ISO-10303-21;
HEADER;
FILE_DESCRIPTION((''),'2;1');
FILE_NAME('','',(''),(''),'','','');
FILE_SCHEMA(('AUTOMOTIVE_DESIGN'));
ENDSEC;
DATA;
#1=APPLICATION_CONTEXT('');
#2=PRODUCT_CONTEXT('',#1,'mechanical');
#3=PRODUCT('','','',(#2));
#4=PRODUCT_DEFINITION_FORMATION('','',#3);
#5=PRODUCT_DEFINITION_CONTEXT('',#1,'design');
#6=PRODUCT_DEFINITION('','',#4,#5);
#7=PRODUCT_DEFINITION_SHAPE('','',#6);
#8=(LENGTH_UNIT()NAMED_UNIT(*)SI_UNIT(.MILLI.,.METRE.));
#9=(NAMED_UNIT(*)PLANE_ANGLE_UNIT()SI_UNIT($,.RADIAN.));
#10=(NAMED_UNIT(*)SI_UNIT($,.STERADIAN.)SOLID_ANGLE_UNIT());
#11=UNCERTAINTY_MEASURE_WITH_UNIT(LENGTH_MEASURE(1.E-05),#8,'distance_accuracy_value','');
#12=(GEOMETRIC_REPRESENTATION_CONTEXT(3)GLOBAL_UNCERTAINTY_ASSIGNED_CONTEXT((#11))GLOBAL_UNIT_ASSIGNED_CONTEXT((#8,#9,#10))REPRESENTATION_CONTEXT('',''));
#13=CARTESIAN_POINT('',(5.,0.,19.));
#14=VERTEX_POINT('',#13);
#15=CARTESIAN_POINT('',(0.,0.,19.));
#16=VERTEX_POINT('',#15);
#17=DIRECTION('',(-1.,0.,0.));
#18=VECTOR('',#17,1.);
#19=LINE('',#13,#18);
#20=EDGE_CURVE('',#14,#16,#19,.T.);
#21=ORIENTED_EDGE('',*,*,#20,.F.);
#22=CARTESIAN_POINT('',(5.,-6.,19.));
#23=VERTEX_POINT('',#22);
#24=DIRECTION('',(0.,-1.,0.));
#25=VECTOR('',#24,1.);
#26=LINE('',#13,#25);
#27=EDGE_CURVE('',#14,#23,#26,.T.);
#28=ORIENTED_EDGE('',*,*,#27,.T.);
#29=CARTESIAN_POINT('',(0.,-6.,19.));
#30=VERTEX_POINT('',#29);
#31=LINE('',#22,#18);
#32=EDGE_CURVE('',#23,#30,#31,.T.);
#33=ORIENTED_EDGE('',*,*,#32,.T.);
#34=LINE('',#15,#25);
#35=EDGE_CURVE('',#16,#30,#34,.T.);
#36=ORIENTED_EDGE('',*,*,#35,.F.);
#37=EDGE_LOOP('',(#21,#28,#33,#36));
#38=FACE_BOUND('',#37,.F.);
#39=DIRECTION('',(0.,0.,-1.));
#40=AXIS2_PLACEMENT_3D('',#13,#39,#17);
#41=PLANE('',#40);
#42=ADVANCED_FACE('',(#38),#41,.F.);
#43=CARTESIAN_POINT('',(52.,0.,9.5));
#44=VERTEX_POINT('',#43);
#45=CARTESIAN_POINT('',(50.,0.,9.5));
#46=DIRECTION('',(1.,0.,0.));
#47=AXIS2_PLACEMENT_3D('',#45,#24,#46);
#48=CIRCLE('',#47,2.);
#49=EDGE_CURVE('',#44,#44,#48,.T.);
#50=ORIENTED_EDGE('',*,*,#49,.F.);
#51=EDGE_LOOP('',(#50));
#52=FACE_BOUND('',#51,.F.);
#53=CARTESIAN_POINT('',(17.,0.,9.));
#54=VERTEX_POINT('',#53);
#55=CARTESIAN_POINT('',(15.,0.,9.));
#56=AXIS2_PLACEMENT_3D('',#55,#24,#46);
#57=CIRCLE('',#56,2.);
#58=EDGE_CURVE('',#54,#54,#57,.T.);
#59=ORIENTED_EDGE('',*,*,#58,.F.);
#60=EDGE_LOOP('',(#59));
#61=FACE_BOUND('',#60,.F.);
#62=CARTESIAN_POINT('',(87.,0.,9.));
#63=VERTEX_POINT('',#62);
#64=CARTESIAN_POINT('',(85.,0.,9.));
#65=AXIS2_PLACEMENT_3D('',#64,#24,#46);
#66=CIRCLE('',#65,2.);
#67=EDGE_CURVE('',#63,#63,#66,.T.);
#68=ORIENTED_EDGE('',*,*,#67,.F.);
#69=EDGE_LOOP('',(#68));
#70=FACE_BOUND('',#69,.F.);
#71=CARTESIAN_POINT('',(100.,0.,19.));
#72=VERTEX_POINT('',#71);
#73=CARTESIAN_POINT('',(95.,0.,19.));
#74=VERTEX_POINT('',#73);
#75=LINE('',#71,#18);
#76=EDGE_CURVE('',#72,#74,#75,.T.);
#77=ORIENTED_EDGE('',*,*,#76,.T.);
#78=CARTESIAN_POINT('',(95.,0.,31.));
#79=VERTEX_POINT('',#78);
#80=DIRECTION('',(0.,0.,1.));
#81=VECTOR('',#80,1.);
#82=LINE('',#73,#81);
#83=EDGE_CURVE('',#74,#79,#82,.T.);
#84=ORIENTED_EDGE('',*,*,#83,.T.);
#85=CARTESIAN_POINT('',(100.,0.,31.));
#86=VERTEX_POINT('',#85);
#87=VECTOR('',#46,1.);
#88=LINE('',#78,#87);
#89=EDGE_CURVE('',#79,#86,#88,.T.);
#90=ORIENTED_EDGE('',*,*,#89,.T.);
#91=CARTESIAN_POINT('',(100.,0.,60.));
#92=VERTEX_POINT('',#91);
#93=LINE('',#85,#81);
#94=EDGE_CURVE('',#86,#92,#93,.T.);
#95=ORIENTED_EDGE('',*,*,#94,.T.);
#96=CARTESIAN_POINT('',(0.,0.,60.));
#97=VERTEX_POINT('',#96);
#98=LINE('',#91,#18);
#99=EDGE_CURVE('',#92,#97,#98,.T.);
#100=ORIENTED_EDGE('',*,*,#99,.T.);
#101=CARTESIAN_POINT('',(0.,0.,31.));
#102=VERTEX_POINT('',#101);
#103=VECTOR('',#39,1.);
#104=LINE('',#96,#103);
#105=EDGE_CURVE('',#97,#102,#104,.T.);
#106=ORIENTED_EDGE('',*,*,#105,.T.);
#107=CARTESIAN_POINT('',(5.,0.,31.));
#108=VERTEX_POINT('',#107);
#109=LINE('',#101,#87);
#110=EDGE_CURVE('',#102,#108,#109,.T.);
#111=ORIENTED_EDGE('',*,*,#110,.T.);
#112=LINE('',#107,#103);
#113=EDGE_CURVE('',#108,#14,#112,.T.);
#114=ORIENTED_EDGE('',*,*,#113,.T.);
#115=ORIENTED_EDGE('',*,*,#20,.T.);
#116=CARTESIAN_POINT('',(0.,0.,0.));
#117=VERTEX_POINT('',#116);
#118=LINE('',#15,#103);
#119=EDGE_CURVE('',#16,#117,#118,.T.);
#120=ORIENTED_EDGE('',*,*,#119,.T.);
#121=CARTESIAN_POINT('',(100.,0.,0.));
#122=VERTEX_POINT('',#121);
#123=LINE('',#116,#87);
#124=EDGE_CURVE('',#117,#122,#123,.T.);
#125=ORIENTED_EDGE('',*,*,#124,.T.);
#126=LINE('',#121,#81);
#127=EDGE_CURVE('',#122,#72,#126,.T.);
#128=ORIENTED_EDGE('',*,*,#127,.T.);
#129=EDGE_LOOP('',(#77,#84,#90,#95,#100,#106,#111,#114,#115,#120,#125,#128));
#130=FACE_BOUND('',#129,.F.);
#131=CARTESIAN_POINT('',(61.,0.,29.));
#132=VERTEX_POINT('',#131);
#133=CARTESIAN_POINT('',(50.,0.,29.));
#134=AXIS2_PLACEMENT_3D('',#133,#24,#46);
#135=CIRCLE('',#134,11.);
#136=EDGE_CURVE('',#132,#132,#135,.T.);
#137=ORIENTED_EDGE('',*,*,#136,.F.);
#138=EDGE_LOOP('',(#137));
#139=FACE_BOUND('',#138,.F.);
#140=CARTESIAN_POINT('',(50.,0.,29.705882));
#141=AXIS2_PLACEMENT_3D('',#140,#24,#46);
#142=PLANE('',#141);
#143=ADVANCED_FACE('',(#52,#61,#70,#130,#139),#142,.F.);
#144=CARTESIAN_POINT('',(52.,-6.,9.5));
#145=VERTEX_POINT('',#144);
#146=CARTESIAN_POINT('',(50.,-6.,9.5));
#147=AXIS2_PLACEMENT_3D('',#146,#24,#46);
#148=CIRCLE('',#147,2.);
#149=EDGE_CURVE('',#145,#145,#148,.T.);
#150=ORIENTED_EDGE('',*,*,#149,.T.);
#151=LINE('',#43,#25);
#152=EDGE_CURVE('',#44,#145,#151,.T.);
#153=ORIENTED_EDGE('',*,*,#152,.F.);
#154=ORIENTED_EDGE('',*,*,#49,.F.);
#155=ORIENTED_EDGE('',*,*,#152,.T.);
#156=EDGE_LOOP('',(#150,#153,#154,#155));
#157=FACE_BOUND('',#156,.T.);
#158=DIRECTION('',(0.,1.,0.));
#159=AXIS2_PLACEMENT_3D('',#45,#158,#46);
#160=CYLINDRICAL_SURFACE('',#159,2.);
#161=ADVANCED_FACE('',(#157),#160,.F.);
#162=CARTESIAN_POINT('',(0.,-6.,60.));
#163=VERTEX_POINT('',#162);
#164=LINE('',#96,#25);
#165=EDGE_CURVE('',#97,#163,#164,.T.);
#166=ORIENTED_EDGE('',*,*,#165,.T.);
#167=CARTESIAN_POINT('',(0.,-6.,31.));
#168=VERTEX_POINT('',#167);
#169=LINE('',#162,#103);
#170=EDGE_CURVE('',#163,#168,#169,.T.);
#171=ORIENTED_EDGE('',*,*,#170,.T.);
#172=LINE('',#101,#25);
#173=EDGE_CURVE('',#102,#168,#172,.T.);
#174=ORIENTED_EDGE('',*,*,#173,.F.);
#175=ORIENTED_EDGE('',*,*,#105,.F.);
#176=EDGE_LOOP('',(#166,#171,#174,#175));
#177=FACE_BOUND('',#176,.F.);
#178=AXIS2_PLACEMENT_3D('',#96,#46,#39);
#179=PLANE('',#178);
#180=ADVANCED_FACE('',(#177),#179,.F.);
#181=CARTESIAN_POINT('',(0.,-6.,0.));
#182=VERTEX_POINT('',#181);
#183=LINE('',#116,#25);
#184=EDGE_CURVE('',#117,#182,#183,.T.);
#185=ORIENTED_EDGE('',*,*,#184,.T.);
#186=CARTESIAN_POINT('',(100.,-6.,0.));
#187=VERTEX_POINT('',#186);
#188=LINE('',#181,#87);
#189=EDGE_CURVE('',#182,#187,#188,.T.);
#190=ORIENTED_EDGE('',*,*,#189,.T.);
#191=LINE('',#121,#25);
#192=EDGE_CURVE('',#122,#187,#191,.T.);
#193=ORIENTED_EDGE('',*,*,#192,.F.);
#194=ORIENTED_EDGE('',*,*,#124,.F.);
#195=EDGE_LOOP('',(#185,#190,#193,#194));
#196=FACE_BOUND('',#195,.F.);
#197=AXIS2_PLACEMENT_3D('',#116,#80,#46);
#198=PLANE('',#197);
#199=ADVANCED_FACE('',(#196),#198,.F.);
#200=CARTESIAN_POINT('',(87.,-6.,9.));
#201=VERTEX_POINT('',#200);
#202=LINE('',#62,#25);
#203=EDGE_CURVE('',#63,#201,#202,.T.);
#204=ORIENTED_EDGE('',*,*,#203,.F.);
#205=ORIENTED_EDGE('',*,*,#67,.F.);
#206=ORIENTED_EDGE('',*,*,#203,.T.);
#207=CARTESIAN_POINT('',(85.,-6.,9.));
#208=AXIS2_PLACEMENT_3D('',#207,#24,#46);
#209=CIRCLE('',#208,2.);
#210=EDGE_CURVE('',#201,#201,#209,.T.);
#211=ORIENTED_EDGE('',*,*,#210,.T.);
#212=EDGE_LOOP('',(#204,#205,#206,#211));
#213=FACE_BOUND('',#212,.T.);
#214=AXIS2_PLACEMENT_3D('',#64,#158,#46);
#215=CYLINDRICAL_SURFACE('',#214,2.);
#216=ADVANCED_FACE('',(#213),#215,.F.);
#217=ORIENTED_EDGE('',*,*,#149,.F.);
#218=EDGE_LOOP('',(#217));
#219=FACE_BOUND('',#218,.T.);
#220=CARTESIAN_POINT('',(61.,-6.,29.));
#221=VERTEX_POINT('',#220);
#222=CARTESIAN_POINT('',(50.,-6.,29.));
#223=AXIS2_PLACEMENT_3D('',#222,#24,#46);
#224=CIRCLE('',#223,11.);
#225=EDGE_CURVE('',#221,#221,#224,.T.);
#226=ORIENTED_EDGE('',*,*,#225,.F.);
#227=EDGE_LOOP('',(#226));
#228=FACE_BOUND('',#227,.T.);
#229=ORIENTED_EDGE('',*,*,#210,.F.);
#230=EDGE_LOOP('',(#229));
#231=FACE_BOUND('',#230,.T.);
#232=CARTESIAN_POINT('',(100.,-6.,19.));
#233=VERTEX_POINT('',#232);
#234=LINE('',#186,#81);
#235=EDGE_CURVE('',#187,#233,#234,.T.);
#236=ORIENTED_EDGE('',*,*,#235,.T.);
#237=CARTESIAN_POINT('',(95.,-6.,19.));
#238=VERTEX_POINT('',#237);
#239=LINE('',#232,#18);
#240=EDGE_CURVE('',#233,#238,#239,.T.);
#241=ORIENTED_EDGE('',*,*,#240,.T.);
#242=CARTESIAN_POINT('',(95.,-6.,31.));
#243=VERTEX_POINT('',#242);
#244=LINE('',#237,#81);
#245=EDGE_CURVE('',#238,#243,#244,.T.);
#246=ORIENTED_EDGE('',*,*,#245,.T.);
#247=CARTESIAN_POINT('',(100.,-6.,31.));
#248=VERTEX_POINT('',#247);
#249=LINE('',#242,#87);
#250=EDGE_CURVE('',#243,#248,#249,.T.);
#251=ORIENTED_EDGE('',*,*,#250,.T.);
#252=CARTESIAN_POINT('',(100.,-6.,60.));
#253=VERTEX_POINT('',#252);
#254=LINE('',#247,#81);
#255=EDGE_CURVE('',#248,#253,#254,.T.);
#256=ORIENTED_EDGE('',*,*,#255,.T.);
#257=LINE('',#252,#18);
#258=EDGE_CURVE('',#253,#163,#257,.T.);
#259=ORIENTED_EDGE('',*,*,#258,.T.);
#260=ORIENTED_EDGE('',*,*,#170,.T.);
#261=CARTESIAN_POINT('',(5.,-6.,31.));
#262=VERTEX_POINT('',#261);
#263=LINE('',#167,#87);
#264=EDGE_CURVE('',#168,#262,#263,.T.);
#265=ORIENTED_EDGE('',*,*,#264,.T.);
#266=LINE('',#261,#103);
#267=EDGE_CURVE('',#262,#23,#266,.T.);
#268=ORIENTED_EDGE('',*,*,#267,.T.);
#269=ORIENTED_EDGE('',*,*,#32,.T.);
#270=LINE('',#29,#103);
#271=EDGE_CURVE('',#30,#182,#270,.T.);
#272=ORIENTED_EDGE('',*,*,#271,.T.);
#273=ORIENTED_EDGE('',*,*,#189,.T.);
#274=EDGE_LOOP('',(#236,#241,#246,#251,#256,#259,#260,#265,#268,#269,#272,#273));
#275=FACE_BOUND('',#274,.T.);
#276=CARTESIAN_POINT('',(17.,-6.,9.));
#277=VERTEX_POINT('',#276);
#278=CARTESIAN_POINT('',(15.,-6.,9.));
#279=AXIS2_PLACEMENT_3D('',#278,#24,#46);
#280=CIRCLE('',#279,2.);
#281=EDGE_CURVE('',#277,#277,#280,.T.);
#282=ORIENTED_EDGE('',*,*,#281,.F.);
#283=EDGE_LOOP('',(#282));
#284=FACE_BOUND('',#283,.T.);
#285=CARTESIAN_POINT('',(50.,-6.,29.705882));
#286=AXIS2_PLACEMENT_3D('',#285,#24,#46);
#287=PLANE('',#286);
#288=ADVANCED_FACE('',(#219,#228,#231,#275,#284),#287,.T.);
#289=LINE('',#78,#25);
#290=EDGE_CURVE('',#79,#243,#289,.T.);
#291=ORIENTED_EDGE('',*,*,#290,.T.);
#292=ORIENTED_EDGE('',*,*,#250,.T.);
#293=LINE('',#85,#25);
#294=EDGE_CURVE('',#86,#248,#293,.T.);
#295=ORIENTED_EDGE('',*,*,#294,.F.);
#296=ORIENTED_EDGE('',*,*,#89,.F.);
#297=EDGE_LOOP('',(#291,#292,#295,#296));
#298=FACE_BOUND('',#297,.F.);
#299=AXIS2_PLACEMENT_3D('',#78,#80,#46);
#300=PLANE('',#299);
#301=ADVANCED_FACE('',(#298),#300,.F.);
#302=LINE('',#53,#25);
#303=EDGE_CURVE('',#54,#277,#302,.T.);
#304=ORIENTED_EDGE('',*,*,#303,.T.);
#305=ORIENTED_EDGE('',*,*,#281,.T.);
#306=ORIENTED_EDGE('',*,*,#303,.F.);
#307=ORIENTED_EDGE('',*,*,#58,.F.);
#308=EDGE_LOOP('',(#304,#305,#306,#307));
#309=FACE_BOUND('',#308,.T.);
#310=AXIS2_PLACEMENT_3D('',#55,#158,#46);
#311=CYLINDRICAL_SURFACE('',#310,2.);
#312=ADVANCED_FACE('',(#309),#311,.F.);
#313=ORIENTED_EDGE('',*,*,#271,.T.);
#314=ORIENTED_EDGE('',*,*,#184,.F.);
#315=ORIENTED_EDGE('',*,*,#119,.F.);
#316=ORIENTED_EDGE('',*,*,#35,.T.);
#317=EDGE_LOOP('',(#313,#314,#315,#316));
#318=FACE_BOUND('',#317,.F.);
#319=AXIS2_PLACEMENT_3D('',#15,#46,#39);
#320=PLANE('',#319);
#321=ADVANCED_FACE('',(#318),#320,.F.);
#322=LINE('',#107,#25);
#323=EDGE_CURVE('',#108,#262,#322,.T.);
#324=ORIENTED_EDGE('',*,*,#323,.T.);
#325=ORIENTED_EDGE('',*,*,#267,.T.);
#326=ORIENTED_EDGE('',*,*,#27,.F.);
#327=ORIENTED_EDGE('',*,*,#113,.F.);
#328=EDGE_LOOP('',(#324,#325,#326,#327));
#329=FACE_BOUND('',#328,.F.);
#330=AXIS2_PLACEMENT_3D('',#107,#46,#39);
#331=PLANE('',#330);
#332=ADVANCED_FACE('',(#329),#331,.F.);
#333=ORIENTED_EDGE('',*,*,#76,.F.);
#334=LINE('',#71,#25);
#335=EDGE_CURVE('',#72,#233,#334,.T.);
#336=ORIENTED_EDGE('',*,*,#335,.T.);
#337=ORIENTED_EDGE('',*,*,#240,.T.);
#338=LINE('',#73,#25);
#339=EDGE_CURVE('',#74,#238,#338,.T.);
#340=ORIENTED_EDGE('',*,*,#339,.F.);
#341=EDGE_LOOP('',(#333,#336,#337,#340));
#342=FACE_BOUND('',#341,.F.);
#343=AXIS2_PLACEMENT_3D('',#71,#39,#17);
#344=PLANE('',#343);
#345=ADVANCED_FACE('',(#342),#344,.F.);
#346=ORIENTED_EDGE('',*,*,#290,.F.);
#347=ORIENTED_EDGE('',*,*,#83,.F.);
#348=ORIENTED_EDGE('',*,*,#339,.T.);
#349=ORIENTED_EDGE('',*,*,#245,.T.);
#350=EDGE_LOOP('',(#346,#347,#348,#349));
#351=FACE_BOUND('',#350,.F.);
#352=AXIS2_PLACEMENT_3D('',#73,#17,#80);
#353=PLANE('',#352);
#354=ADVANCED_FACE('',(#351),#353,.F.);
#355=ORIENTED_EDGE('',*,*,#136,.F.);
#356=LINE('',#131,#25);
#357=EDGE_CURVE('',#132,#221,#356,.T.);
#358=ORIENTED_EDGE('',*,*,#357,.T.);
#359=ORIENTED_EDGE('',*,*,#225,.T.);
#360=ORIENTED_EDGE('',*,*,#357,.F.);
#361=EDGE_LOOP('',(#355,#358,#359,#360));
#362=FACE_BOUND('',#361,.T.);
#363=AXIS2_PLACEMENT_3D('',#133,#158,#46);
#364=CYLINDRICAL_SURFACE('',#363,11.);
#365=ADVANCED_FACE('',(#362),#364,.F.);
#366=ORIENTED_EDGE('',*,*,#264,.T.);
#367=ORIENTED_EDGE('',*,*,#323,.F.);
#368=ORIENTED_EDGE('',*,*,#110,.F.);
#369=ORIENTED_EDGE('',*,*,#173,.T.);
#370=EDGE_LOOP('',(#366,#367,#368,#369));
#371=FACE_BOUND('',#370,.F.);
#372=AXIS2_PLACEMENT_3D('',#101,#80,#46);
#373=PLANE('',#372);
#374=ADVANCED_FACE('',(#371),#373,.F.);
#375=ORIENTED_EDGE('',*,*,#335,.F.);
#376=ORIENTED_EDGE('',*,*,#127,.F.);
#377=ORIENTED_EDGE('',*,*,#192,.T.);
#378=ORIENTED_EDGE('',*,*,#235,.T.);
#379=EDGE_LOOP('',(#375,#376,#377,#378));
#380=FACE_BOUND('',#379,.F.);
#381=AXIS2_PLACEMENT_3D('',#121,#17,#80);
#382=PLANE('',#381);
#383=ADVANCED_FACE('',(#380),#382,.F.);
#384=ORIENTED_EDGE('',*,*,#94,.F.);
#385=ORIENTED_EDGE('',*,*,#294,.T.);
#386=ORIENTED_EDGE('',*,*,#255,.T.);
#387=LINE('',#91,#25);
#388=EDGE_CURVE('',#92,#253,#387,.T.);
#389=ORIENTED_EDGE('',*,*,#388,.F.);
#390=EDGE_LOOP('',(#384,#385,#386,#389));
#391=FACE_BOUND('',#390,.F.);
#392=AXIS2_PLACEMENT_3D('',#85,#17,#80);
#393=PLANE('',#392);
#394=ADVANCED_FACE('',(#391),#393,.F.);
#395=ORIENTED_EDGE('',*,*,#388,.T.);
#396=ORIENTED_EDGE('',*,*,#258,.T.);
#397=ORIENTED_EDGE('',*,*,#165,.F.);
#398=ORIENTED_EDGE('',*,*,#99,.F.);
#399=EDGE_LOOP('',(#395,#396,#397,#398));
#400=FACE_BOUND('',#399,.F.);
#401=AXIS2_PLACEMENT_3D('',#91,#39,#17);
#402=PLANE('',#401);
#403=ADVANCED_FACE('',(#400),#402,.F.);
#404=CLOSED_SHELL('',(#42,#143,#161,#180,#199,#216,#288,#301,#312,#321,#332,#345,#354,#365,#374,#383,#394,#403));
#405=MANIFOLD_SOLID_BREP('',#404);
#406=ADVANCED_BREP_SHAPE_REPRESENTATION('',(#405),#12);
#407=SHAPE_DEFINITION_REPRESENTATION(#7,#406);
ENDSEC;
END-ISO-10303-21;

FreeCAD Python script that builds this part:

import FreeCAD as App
import Part
import Sketcher
Q = App.Units.Quantity

doc = App.newDocument("Part")
body = doc.addObject("PartDesign::Body", "Body")

# Sketch on XZ plane
sketch1 = body.newObject("Sketcher::SketchObject", "Sketch")
sketch1.AttachmentSupport = (doc.getObject("XZ_Plane"), [""])
sketch1.MapMode = "FlatFace"
sketch1.addGeometry([
    Part.LineSegment(App.Vector(100, 60, 0), App.Vector(0, 60, 0)),  # 0
    Part.LineSegment(App.Vector(0, 60, 0), App.Vector(0, 31, 0)),  # 1
    Part.LineSegment(App.Vector(0, 31, 0), App.Vector(5, 31, 0)),  # 2
    Part.LineSegment(App.Vector(5, 31, 0), App.Vector(5, 19, 0)),  # 3
    Part.LineSegment(App.Vector(5, 19, 0), App.Vector(0, 19, 0)),  # 4
    Part.LineSegment(App.Vector(0, 19, 0), App.Vector(0, 0, 0)),  # 5
    Part.LineSegment(App.Vector(0, 0, 0), App.Vector(100, 0, 0)),  # 6
    Part.LineSegment(App.Vector(100, 0, 0), App.Vector(100, 19, 0)),  # 7
    Part.LineSegment(App.Vector(100, 19, 0), App.Vector(95, 19, 0)),  # 8
    Part.LineSegment(App.Vector(95, 19, 0), App.Vector(95, 31, 0)),  # 9
    Part.LineSegment(App.Vector(95, 31, 0), App.Vector(100, 31, 0)),  # 10
    Part.LineSegment(App.Vector(100, 31, 0), App.Vector(100, 60, 0)),  # 11
    Part.Circle(App.Vector(15, 9, 0), App.Vector(0, 0, 1), 2),  # 12
    Part.Circle(App.Vector(50, 9.5, 0), App.Vector(0, 0, 1), 2),  # 13
    Part.Circle(App.Vector(85, 9, 0), App.Vector(0, 0, 1), 2),  # 14
    Part.Circle(App.Vector(50, 29, 0), App.Vector(0, 0, 1), 11),  # 15
], False)
sketch1.addConstraint([
    Sketcher.Constraint("Coincident", 0, 2, 1, 1),
    Sketcher.Constraint("Coincident", 1, 2, 2, 1),
    Sketcher.Constraint("Coincident", 2, 2, 3, 1),
    Sketcher.Constraint("Coincident", 3, 2, 4, 1),
    Sketcher.Constraint("Coincident", 4, 2, 5, 1),
    Sketcher.Constraint("Coincident", 5, 2, 6, 1),
    Sketcher.Constraint("Coincident", 6, 2, 7, 1),
    Sketcher.Constraint("Coincident", 7, 2, 8, 1),
    Sketcher.Constraint("Coincident", 8, 2, 9, 1),
    Sketcher.Constraint("Coincident", 9, 2, 10, 1),
    Sketcher.Constraint("Coincident", 10, 2, 11, 1),
    Sketcher.Constraint("Coincident", 11, 2, 0, 1),
    Sketcher.Constraint("Horizontal", 0),
    Sketcher.Constraint("Vertical", 1),
    Sketcher.Constraint("Horizontal", 2),
    Sketcher.Constraint("Vertical", 3),
    Sketcher.Constraint("Horizontal", 4),
    Sketcher.Constraint("Vertical", 5),
    Sketcher.Constraint("Horizontal", 6),
    Sketcher.Constraint("Vertical", 7),
    Sketcher.Constraint("Horizontal", 8),
    Sketcher.Constraint("Vertical", 9),
    Sketcher.Constraint("Horizontal", 10),
    Sketcher.Constraint("Vertical", 11),
    Sketcher.Constraint("Coincident", 5, 2, -1, 1),
    Sketcher.Constraint("Equal", 12, 13),
    Sketcher.Constraint("Equal", 13, 14),
    Sketcher.Constraint("PointOnObject", 0, 2, -2),
    Sketcher.Constraint("Horizontal", 12, 3, 14, 3),
    Sketcher.Constraint("Horizontal", 4, 2, 7, 2),
    Sketcher.Constraint("Horizontal", 2, 2, 9, 2),
    Sketcher.Constraint("Vertical", 13, 3, 15, 3),
    Sketcher.Constraint("Vertical", 7, 2, 10, 2),
    Sketcher.Constraint("Equal", 4, 8),
    Sketcher.Constraint("Diameter", 12, Q("4 mm")),
    Sketcher.Constraint("Diameter", 15, Q("22 mm")),
    Sketcher.Constraint("DistanceX", 0, 2, 0, 1, Q("100 mm")),
    Sketcher.Constraint("DistanceX", 2, 1, 2, 2, Q("5 mm")),
    Sketcher.Constraint("DistanceY", 1, 2, 1, 1, Q("29 mm")),
    Sketcher.Constraint("DistanceY", 3, 2, 3, 1, Q("12 mm")),
    Sketcher.Constraint("DistanceY", 5, 2, 5, 1, Q("19 mm")),
    Sketcher.Constraint("DistanceX", -1, 1, 12, 3, Q("15 mm")),
    Sketcher.Constraint("DistanceY", -1, 1, 12, 3, Q("9 mm")),
    Sketcher.Constraint("DistanceX", -1, 1, 13, 3, Q("50 mm")),
    Sketcher.Constraint("DistanceX", -1, 1, 14, 3, Q("85 mm")),
    Sketcher.Constraint("DistanceY", -1, 1, 15, 3, Q("29 mm")),
    Sketcher.Constraint("DistanceY", -1, 1, 13, 3, Q("9.5 mm")),
])
pad1 = body.newObject("PartDesign::Pad", "Pad")
pad1.Profile = sketch1
pad1.Length = 6

doc.recompute()
